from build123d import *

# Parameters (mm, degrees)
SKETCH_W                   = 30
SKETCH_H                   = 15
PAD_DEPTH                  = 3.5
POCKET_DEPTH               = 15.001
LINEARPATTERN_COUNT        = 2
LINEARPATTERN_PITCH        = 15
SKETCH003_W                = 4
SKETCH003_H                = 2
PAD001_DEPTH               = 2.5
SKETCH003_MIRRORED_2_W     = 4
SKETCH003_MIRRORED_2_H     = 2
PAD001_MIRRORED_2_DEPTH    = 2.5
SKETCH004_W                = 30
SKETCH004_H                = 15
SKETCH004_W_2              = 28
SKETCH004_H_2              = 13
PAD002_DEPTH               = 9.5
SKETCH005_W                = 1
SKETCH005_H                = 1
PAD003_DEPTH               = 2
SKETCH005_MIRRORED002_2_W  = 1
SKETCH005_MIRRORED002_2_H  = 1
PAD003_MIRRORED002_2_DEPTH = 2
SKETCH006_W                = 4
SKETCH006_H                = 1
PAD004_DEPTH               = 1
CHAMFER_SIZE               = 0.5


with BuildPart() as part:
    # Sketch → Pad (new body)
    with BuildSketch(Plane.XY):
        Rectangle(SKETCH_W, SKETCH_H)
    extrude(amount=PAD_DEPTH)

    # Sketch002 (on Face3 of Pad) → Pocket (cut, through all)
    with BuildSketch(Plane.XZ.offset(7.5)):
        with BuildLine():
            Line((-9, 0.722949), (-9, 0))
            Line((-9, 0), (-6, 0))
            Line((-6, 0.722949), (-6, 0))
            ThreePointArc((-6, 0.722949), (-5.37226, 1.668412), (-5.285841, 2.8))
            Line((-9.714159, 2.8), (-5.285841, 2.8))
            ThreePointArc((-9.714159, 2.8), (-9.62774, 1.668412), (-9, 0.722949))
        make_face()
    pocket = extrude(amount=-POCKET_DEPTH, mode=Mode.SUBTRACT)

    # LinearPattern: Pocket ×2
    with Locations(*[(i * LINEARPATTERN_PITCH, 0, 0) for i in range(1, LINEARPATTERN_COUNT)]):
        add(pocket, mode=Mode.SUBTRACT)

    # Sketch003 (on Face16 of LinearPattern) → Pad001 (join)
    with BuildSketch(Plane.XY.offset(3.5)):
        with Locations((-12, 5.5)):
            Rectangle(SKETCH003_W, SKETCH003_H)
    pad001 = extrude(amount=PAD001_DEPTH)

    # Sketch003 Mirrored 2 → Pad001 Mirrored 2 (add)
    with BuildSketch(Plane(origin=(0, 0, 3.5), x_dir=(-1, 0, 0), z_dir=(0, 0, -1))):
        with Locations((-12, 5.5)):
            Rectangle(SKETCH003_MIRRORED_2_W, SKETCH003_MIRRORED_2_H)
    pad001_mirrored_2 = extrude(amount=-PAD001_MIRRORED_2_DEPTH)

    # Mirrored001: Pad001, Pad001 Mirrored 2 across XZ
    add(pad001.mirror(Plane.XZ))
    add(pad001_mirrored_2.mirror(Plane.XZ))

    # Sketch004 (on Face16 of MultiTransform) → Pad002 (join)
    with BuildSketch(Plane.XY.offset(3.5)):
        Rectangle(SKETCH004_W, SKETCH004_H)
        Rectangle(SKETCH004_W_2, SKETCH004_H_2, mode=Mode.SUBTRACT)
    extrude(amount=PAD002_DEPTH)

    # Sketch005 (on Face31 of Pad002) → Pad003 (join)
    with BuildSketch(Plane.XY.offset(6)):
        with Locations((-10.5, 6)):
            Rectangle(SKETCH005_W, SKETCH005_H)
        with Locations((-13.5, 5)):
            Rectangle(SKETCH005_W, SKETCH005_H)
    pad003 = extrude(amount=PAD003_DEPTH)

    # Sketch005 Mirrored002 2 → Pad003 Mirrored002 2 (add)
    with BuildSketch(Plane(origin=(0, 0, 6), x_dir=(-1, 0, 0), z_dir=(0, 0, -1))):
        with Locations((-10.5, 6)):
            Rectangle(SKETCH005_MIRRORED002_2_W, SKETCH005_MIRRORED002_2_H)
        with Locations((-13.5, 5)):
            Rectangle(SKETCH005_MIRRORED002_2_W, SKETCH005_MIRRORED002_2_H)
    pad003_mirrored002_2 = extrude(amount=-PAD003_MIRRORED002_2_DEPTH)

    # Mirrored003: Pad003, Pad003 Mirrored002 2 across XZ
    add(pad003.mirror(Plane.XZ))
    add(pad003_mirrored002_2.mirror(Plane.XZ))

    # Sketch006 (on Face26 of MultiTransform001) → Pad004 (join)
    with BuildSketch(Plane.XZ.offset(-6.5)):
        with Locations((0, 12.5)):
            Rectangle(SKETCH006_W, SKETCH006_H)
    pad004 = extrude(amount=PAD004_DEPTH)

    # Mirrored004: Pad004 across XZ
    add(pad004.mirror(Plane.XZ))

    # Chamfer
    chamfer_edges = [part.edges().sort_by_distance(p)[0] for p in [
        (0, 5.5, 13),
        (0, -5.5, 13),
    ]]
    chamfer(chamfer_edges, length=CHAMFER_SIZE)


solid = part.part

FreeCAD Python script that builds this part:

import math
import FreeCAD as App
import Part
import Sketcher

V = App.Vector


def edges_at(feature, points):
    """Names of the edges that pass closest to the given points."""
    edges = feature.Shape.Edges
    near = lambda p: min(range(len(edges)), key=lambda i: edges[i].distToShape(Part.Vertex(*p))[0])
    return sorted({f"Edge{near(p) + 1}" for p in points})


def add_polygon(sketch, points):
    """Adds a closed chain of lines whose ends are joined by coincident constraints."""
    first, n = sketch.GeometryCount, len(points)
    for a, b in zip(points, points[1:] + points[:1]):
        sketch.addGeometry(Part.LineSegment(App.Vector(*a, 0), App.Vector(*b, 0)), False)
    for i in range(n):
        sketch.addConstraint(Sketcher.Constraint("Coincident", first + i, 2, first + (i + 1) % n, 1))

doc = App.newDocument("Part")
body = doc.addObject("PartDesign::Body", "Body")

# Sketch on XY plane
sketch1 = body.newObject("Sketcher::SketchObject", "Sketch")
sketch1.AttachmentSupport = (doc.getObject("XY_Plane"), [""])
sketch1.MapMode = "FlatFace"
add_polygon(sketch1, [(-15, 8), (-15, -8), (15, -8), (15, 8)])  # lines 0-3
sketch1.addConstraint([
    Sketcher.Constraint("Vertical", 0),
    Sketcher.Constraint("Horizontal", 1),
    Sketcher.Constraint("Vertical", 2),
    Sketcher.Constraint("Horizontal", 3),
    Sketcher.Constraint("Symmetric", 0, 2, 2, 2, -1, 1),
    Sketcher.Constraint("DistanceX", 1, 1, 1, 2, 30.0),
    Sketcher.Constraint("DistanceY", 0, 2, 0, 1, 15.0),
])
pad1 = body.newObject("PartDesign::Pad", "Pad")
pad1.Profile = sketch1
pad1.Length = 3.5

# Sketch on XZ plane
sketch2 = body.newObject("Sketcher::SketchObject", "Sketch001")
sketch2.AttachmentSupport = (doc.getObject("XZ_Plane"), [""])
sketch2.MapMode = "FlatFace"
sketch2.AttachmentOffset = App.Placement(V(0, 0, 7.5), App.Rotation())
sketch2.addGeometry([
    Part.LineSegment(V(-9, 0.7, 0), V(-9, 0, 0)),  # 0
    Part.LineSegment(V(-9, 0, 0), V(-6, 0, 0)),  # 1
    Part.LineSegment(V(-6, 0, 0), V(-6, 0.7, 0)),  # 2
    Part.ArcOfCircle(Part.Circle(V(-7.5, 2.4, 0), V(0, 0, 1), 2.3), math.radians(-48), math.radians(10)),  # 3
    Part.LineSegment(V(-5.3, 2.8, 0), V(-9.7, 2.8, 0)),  # 4
    Part.ArcOfCircle(Part.Circle(V(-7.5, 2.4, 0), V(0, 0, 1), 2.3), math.radians(170), math.radians(228)),  # 5
], False)
sketch2.addConstraint([
    Sketcher.Constraint("Coincident", 0, 2, 1, 1),
    Sketcher.Constraint("Coincident", 1, 2, 2, 1),
    Sketcher.Constraint("Coincident", 2, 2, 3, 1),
    Sketcher.Constraint("Coincident", 3, 2, 4, 1),
    Sketcher.Constraint("Coincident", 4, 2, 5, 1),
    Sketcher.Constraint("Coincident", 5, 2, 0, 1),
    Sketcher.Constraint("Vertical", 0),
    Sketcher.Constraint("Horizontal", 1),
    Sketcher.Constraint("Vertical", 2),
    Sketcher.Constraint("Horizontal", 4),
    Sketcher.Constraint("Coincident", 5, 3, 3, 3),
    Sketcher.Constraint("Equal", 3, 5),
    Sketcher.Constraint("PointOnObject", 0, 2, -1),
    Sketcher.Constraint("Horizontal", 2, 2, 5, 2),
    Sketcher.Constraint("DistanceX", 1, 1, 1, 2, 3.0),
    Sketcher.Constraint("DistanceX", 0, 2, -1, 1, 9.0),
    Sketcher.Constraint("DistanceY", -1, 1, 3, 3, 2.400001),
    Sketcher.Constraint("DistanceY", -1, 1, 3, 2, 2.8),
    Sketcher.Constraint("Radius", 3, 2.250002),
])
pocket1 = body.newObject("PartDesign::Pocket", "Pocket")
pocket1.Profile = sketch2
pocket1.Type = "ThroughAll"
doc.recompute()

linearpattern = body.newObject("PartDesign::LinearPattern", "LinearPattern")
linearpattern.Originals = [pocket1]
linearpattern.Direction = (doc.getObject("X_Axis"), [""])
linearpattern.Mode = "offset"
linearpattern.Offset = 15
linearpattern.Occurrences = 2
body.Tip = linearpattern

# Sketch on XY plane
sketch3 = body.newObject("Sketcher::SketchObject", "Sketch002")
sketch3.AttachmentSupport = (doc.getObject("XY_Plane"), [""])
sketch3.MapMode = "FlatFace"
sketch3.AttachmentOffset = App.Placement(V(0, 0, 3.5), App.Rotation())
add_polygon(sketch3, [(-14, 6.5), (-14, 4.5), (-10, 4.5), (-10, 6.5)])  # lines 0-3
sketch3.addConstraint([
    Sketcher.Constraint("Vertical", 0),
    Sketcher.Constraint("Horizontal", 1),
    Sketcher.Constraint("Vertical", 2),
    Sketcher.Constraint("Horizontal", 3),
    Sketcher.Constraint("DistanceX", 1, 1, 1, 2, 4.0),
    Sketcher.Constraint("DistanceY", 0, 2, 0, 1, 2.0),
    Sketcher.Constraint("DistanceX", 0, 2, -1, 1, 14.0),
    Sketcher.Constraint("DistanceY", -1, 1, 0, 2, 4.5),
])
pad2 = body.newObject("PartDesign::Pad", "Pad001")
pad2.Profile = sketch3
pad2.Length = 2.5

# Sketch on XY plane
sketch4 = body.newObject("Sketcher::SketchObject", "Sketch003")
sketch4.AttachmentSupport = (doc.getObject("XY_Plane"), [""])
sketch4.MapMode = "FlatFace"
sketch4.AttachmentOffset = App.Placement(V(0, 0, 3.5), App.Rotation())
add_polygon(sketch4, [(14, 6.5), (14, 4.5), (10, 4.5), (10, 6.5)])  # lines 0-3
sketch4.addConstraint([
    Sketcher.Constraint("Vertical", 0),
    Sketcher.Constraint("Horizontal", 1),
    Sketcher.Constraint("Vertical", 2),
    Sketcher.Constraint("Horizontal", 3),
    Sketcher.Constraint("DistanceX", 1, 2, 1, 1, 4.0),
    Sketcher.Constraint("DistanceY", 0, 2, 0, 1, 2.0),
    Sketcher.Constraint("DistanceX", -1, 1, 0, 2, 14.0),
    Sketcher.Constraint("DistanceY", -1, 1, 0, 2, 4.5),
])
pad3 = body.newObject("PartDesign::Pad", "Pad002")
pad3.Profile = sketch4
pad3.Length = 2.5
doc.recompute()

mirrored = body.newObject("PartDesign::Mirrored", "Mirrored")
mirrored.Originals = [pad2, pad3]
mirrored.MirrorPlane = (doc.getObject("XZ_Plane"), [""])
body.Tip = mirrored

# Sketch on XY plane
sketch5 = body.newObject("Sketcher::SketchObject", "Sketch004")
sketch5.AttachmentSupport = (doc.getObject("XY_Plane"), [""])
sketch5.MapMode = "FlatFace"
sketch5.AttachmentOffset = App.Placement(V(0, 0, 3.5), App.Rotation())
add_polygon(sketch5, [(-15, 8), (-15, -8), (15, -8), (15, 8)])  # lines 0-3
add_polygon(sketch5, [(14, -6), (-14, -6), (-14, 6), (14, 6)])  # lines 4-7
sketch5.addConstraint([
    Sketcher.Constraint("Vertical", 0),
    Sketcher.Constraint("Horizontal", 1),
    Sketcher.Constraint("Vertical", 2),
    Sketcher.Constraint("Horizontal", 3),
    Sketcher.Constraint("Horizontal", 4),
    Sketcher.Constraint("Vertical", 5),
    Sketcher.Constraint("Horizontal", 6),
    Sketcher.Constraint("Vertical", 7),
    Sketcher.Constraint("Symmetric", 0, 2, 2, 2, -1, 1),
    Sketcher.Constraint("Symmetric", 4, 2, 6, 2, -1, 1),
    Sketcher.Constraint("DistanceX", 1, 1, 1, 2, 30.0),
    Sketcher.Constraint("DistanceX", 4, 2, 4, 1, 28.0),
    Sketcher.Constraint("DistanceY", 0, 2, 0, 1, 15.0),
    Sketcher.Constraint("DistanceY", 5, 1, 5, 2, 13.0),
])
pad4 = body.newObject("PartDesign::Pad", "Pad003")
pad4.Profile = sketch5
pad4.Length = 9.5

# Sketch on XY plane
sketch6 = body.newObject("Sketcher::SketchObject", "Sketch005")
sketch6.AttachmentSupport = (doc.getObject("XY_Plane"), [""])
sketch6.MapMode = "FlatFace"
sketch6.AttachmentOffset = App.Placement(V(0, 0, 6), App.Rotation())
add_polygon(sketch6, [(-11, 6.5), (-11, 5.5), (-10, 5.5), (-10, 6.5)])  # lines 0-3
add_polygon(sketch6, [(-14, 5.5), (-14, 4.5), (-13, 4.5), (-13, 5.5)])  # lines 4-7
sketch6.addConstraint([
    Sketcher.Constraint("Vertical", 0),
    Sketcher.Constraint("Horizontal", 1),
    Sketcher.Constraint("Vertical", 2),
    Sketcher.Constraint("Horizontal", 3),
    Sketcher.Constraint("Vertical", 4),
    Sketcher.Constraint("Horizontal", 5),
    Sketcher.Constraint("Vertical", 6),
    Sketcher.Constraint("Horizontal", 7),
    Sketcher.Constraint("Horizontal", 1, 2, 6, 2),
    Sketcher.Constraint("Equal", 3, 5),
    Sketcher.Constraint("Equal", 7, 0),
    Sketcher.Constraint("Equal", 2, 4),
    Sketcher.Constraint("DistanceX", 1, 1, 1, 2, 1.0),
    Sketcher.Constraint("DistanceX", 0, 2, -1, 1, 11.0),
    Sketcher.Constraint("DistanceX", 4, 2, -1, 1, 14.0),
    Sketcher.Constraint("DistanceY", -1, 1, 0, 2, 5.5),
])
pad5 = body.newObject("PartDesign::Pad", "Pad004")
pad5.Profile = sketch6
pad5.Length = 2

# Sketch on XY plane
sketch7 = body.newObject("Sketcher::SketchObject", "Sketch006")
sketch7.AttachmentSupport = (doc.getObject("XY_Plane"), [""])
sketch7.MapMode = "FlatFace"
sketch7.AttachmentOffset = App.Placement(V(0, 0, 6), App.Rotation())
add_polygon(sketch7, [(11, 6.5), (11, 5.5), (10, 5.5), (10, 6.5)])  # lines 0-3
add_polygon(sketch7, [(14, 5.5), (14, 4.5), (13, 4.5), (13, 5.5)])  # lines 4-7
sketch7.addConstraint([
    Sketcher.Constraint("Vertical", 0),
    Sketcher.Constraint("Horizontal", 1),
    Sketcher.Constraint("Vertical", 2),
    Sketcher.Constraint("Horizontal", 3),
    Sketcher.Constraint("Vertical", 4),
    Sketcher.Constraint("Horizontal", 5),
    Sketcher.Constraint("Vertical", 6),
    Sketcher.Constraint("Horizontal", 7),
    Sketcher.Constraint("Horizontal", 1, 2, 6, 2),
    Sketcher.Constraint("Equal", 3, 5),
    Sketcher.Constraint("Equal", 7, 0),
    Sketcher.Constraint("Equal", 2, 4),
    Sketcher.Constraint("DistanceX", 1, 2, 1, 1, 1.0),
    Sketcher.Constraint("DistanceX", -1, 1, 0, 2, 11.0),
    Sketcher.Constraint("DistanceX", -1, 1, 4, 2, 14.0),
    Sketcher.Constraint("DistanceY", -1, 1, 0, 2, 5.5),
])
pad6 = body.newObject("PartDesign::Pad", "Pad005")
pad6.Profile = sketch7
pad6.Length = 2
doc.recompute()

mirrored2 = body.newObject("PartDesign::Mirrored", "Mirrored001")
mirrored2.Originals = [pad5, pad6]
mirrored2.MirrorPlane = (doc.getObject("XZ_Plane"), [""])
body.Tip = mirrored2

# Sketch on XZ plane
sketch8 = body.newObject("Sketcher::SketchObject", "Sketch007")
sketch8.AttachmentSupport = (doc.getObject("XZ_Plane"), [""])
sketch8.MapMode = "FlatFace"
sketch8.AttachmentOffset = App.Placement(V(0, 0, -6.5), App.Rotation())
add_polygon(sketch8, [(-2, 13), (-2, 12), (2, 12), (2, 13)])  # lines 0-3
sketch8.addConstraint([
    Sketcher.Constraint("Vertical", 0),
    Sketcher.Constraint("Horizontal", 1),
    Sketcher.Constraint("Vertical", 2),
    Sketcher.Constraint("Horizontal", 3),
    Sketcher.Constraint("DistanceX", 1, 1, 1, 2, 4.0),
    Sketcher.Constraint("DistanceY", 0, 2, 0, 1, 1.0),
    Sketcher.Constraint("DistanceX", 0, 2, -1, 1, 2.0),
    Sketcher.Constraint("DistanceY", -1, 1, 0, 2, 12.0),
])
pad7 = body.newObject("PartDesign::Pad", "Pad006")
pad7.Profile = sketch8
pad7.Length = 1
doc.recompute()

mirrored3 = body.newObject("PartDesign::Mirrored", "Mirrored002")
mirrored3.Originals = [pad7]
mirrored3.MirrorPlane = (doc.getObject("XZ_Plane"), [""])
body.Tip = mirrored3
doc.recompute()

chamfer = body.newObject("PartDesign::Chamfer", "Chamfer")
chamfer.Base = (mirrored3, edges_at(mirrored3, [(0, 5.5, 13), (0, -5.5, 13)]))
chamfer.Size = 0.5

doc.recompute()
